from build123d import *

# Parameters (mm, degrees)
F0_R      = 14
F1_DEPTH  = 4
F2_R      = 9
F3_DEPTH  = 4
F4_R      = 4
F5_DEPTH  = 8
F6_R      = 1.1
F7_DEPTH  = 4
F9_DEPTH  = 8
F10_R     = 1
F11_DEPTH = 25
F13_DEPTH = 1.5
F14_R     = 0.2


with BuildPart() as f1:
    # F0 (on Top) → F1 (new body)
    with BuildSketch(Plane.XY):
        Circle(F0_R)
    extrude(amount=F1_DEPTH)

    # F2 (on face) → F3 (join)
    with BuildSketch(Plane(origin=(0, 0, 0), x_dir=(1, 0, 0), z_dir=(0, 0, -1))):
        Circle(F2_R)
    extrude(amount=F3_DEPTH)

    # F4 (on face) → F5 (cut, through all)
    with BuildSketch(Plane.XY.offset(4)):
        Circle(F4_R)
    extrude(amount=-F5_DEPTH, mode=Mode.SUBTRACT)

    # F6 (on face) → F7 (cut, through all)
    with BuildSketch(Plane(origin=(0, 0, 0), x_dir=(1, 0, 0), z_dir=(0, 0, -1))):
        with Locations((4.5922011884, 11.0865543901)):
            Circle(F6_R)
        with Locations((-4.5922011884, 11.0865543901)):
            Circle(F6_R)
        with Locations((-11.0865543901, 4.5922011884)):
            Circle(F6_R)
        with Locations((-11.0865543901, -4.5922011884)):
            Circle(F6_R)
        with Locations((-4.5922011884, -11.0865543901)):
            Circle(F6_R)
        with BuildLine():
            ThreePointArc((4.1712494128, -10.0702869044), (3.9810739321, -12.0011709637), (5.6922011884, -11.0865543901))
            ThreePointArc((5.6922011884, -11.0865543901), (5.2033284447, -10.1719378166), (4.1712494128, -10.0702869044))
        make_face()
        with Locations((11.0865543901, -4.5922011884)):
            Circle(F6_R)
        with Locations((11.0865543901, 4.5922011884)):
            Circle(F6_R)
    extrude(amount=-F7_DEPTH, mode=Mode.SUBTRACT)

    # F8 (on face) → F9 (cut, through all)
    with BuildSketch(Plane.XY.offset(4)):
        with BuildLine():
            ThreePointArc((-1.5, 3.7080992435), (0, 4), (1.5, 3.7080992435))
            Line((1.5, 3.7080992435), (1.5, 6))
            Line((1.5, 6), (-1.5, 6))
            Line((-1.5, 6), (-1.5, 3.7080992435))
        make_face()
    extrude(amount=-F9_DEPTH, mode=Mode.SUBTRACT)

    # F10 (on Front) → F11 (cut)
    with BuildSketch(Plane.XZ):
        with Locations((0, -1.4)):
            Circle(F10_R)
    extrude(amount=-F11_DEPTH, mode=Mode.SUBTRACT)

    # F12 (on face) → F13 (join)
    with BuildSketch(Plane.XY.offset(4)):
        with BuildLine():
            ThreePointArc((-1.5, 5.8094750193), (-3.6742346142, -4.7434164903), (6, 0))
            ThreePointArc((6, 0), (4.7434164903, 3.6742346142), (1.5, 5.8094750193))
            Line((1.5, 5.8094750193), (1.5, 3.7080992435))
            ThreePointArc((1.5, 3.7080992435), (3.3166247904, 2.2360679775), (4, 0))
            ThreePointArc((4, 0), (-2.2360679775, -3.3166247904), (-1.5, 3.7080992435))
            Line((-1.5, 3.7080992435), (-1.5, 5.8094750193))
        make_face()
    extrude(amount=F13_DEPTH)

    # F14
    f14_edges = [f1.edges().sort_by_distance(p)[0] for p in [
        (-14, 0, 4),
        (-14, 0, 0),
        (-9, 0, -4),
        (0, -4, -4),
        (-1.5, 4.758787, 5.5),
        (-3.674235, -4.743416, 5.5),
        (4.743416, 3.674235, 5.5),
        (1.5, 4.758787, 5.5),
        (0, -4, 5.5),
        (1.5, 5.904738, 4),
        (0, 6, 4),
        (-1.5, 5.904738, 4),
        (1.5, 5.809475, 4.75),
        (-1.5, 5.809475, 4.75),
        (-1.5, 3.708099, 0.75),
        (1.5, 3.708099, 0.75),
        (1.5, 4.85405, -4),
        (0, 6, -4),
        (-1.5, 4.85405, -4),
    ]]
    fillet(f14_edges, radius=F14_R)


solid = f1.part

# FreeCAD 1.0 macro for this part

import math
import FreeCAD as App
import Part
import Sketcher

V = App.Vector


def edges_at(feature, points):
    """Names of the edges that pass closest to the given points."""
    edges = feature.Shape.Edges
    near = lambda p: min(range(len(edges)), key=lambda i: edges[i].distToShape(Part.Vertex(*p))[0])
    return sorted({f"Edge{near(p) + 1}" for p in points})

doc = App.newDocument("Part")
body = doc.addObject("PartDesign::Body", "Body")

sketch1 = body.newObject("Sketcher::SketchObject", "Sketch")
sketch1.AttachmentSupport = (doc.getObject("XY_Plane"), [""])
sketch1.MapMode = "FlatFace"
sketch1.addGeometry(Part.Circle(V(0, 0, 0), V(0, 0, 1), 14), False)
sketch1.addConstraint([
    Sketcher.Constraint("Coincident", 0, 3, -1, 1),
    Sketcher.Constraint("Diameter", 0, 28.0),
])
pad1 = body.newObject("PartDesign::Pad", "Pad")
pad1.Profile = sketch1
pad1.Length = 4

sketch2 = body.newObject("Sketcher::SketchObject", "Sketch001")
sketch2.AttachmentSupport = (doc.getObject("XY_Plane"), [""])
sketch2.MapMode = "FlatFace"
sketch2.addGeometry(Part.Circle(V(0, 0, 0), V(0, 0, 1), 9), False)
sketch2.addConstraint([
    Sketcher.Constraint("Coincident", 0, 3, -1, 1),
    Sketcher.Constraint("Diameter", 0, 18.0),
])
pad2 = body.newObject("PartDesign::Pad", "Pad001")
pad2.Profile = sketch2
pad2.Length = 4
pad2.Reversed = True

sketch3 = body.newObject("Sketcher::SketchObject", "Sketch002")
sketch3.AttachmentSupport = (doc.getObject("XY_Plane"), [""])
sketch3.MapMode = "FlatFace"
sketch3.AttachmentOffset = App.Placement(V(0, 0, 4), App.Rotation())
sketch3.addGeometry(Part.Circle(V(0, 0, 0), V(0, 0, 1), 4), False)
sketch3.addConstraint([
    Sketcher.Constraint("Coincident", 0, 3, -1, 1),
    Sketcher.Constraint("Diameter", 0, 8.0),
])
pocket1 = body.newObject("PartDesign::Pocket", "Pocket")
pocket1.Profile = sketch3
pocket1.Type = "ThroughAll"

sketch4 = body.newObject("Sketcher::SketchObject", "Sketch003")
sketch4.AttachmentSupport = (doc.getObject("XY_Plane"), [""])
sketch4.MapMode = "FlatFace"
sketch4.addGeometry([
    Part.Circle(V(4.6, -11.1, 0), V(0, 0, 1), 1.1),
    Part.Circle(V(-4.6, -11.1, 0), V(0, 0, 1), 1.1),
    Part.Circle(V(-11.1, -4.6, 0), V(0, 0, 1), 1.1),
    Part.Circle(V(-11.1, 4.6, 0), V(0, 0, 1), 1.1),
    Part.Circle(V(-4.6, 11.1, 0), V(0, 0, 1), 1.1),
    Part.ArcOfCircle(Part.Circle(V(4.6, 11.1, 0), V(0, 0, 1), 1.1), math.radians(0), math.radians(248)),
    Part.ArcOfCircle(Part.Circle(V(4.6, 11.1, 0), V(0, 0, 1), 1.1), math.radians(-112), math.radians(0)),
    Part.Circle(V(11.1, 4.6, 0), V(0, 0, 1), 1.1),
    Part.Circle(V(11.1, -4.6, 0), V(0, 0, 1), 1.1),
], False)
sketch4.addConstraint([
    Sketcher.Constraint("Tangent", 5, 1, 6, 2),
    Sketcher.Constraint("Coincident", 6, 1, 5, 2),
    Sketcher.Constraint("Equal", 0, 1),
    Sketcher.Constraint("Equal", 1, 2),
    Sketcher.Constraint("Equal", 2, 3),
    Sketcher.Constraint("Equal", 3, 4),
    Sketcher.Constraint("Equal", 4, 5),
    Sketcher.Constraint("Equal", 6, 7),
    Sketcher.Constraint("Equal", 7, 8),
    Sketcher.Constraint("Symmetric", 0, 3, 4, 3, -1, 1),
    Sketcher.Constraint("Symmetric", 1, 3, 5, 3, -1, 1),
    Sketcher.Constraint("Symmetric", 2, 3, 7, 3, -1, 1),
    Sketcher.Constraint("Symmetric", 3, 3, 8, 3, -1, 1),
    Sketcher.Constraint("Symmetric", 0, 3, 1, 3, -2),
    Sketcher.Constraint("Symmetric", 3, 3, 7, 3, -2),
    Sketcher.Constraint("Horizontal", 6, 3, 5, 1),
    Sketcher.Constraint("Diameter", 0, 2.2),
    Sketcher.Constraint("DistanceX", -1, 1, 0, 3, 4.592201),
    Sketcher.Constraint("DistanceY", 2, 3, -1, 1, 4.592201),
    Sketcher.Constraint("DistanceX", -1, 1, 6, 1, 4.171249),
    Sketcher.Constraint("DistanceY", 1, 3, 4, 3, 22.173109),
    Sketcher.Constraint("DistanceX", 2, 3, -1, 1, 11.086554),
])
pocket2 = body.newObject("PartDesign::Pocket", "Pocket001")
pocket2.Profile = sketch4
pocket2.Type = "ThroughAll"
pocket2.Reversed = True

sketch5 = body.newObject("Sketcher::SketchObject", "Sketch004")
sketch5.AttachmentSupport = (doc.getObject("XY_Plane"), [""])
sketch5.MapMode = "FlatFace"
sketch5.AttachmentOffset = App.Placement(V(0, 0, 4), App.Rotation())
sketch5.addGeometry([
    Part.ArcOfCircle(Part.Circle(V(0, 0, 0), V(0, 0, 1), 4), math.radians(68), math.radians(112)),
    Part.LineSegment(V(1.5, 3.7, 0), V(1.5, 6, 0)),
    Part.LineSegment(V(1.5, 6, 0), V(-1.5, 6, 0)),
    Part.LineSegment(V(-1.5, 6, 0), V(-1.5, 3.7, 0)),
], False)
sketch5.addConstraint([
    Sketcher.Constraint("Coincident", 0, 1, 1, 1),
    Sketcher.Constraint("Coincident", 1, 2, 2, 1),
    Sketcher.Constraint("Coincident", 2, 2, 3, 1),
    Sketcher.Constraint("Coincident", 3, 2, 0, 2),
    Sketcher.Constraint("Vertical", 1),
    Sketcher.Constraint("Horizontal", 2),
    Sketcher.Constraint("Vertical", 3),
    Sketcher.Constraint("Coincident", 0, 3, -1, 1),
    Sketcher.Constraint("Horizontal", 0, 1, 3, 2),
    Sketcher.Constraint("Radius", 0, 4.0),
    Sketcher.Constraint("DistanceX", 2, 2, 2, 1, 3.0),
    Sketcher.Constraint("DistanceY", -1, 1, 1, 2, 6.0),
])
pocket3 = body.newObject("PartDesign::Pocket", "Pocket002")
pocket3.Profile = sketch5
pocket3.Type = "ThroughAll"

sketch6 = body.newObject("Sketcher::SketchObject", "Sketch005")
sketch6.AttachmentSupport = (doc.getObject("XZ_Plane"), [""])
sketch6.MapMode = "FlatFace"
sketch6.addGeometry(Part.Circle(V(0, -1.4, 0), V(0, 0, 1), 1), False)
sketch6.addConstraint([
    Sketcher.Constraint("PointOnObject", 0, 3, -2),
    Sketcher.Constraint("Diameter", 0, 2.0),
    Sketcher.Constraint("DistanceY", 0, 3, -1, 1, 1.4),
])
pocket4 = body.newObject("PartDesign::Pocket", "Pocket003")
pocket4.Profile = sketch6
pocket4.Length = 25

sketch7 = body.newObject("Sketcher::SketchObject", "Sketch006")
sketch7.AttachmentSupport = (doc.getObject("XY_Plane"), [""])
sketch7.MapMode = "FlatFace"
sketch7.AttachmentOffset = App.Placement(V(0, 0, 4), App.Rotation())
sketch7.addGeometry([
    Part.ArcOfCircle(Part.Circle(V(0, 0, 0), V(0, 0, 1), 6), math.radians(104), math.radians(360)),
    Part.ArcOfCircle(Part.Circle(V(0, 0, 0), V(0, 0, 1), 6), math.radians(0), math.radians(76)),
    Part.LineSegment(V(1.5, 5.8, 0), V(1.5, 3.7, 0)),
    Part.ArcOfCircle(Part.Circle(V(0, 0, 0), V(0, 0, 1), 4), math.radians(0), math.radians(68)),
    Part.ArcOfCircle(Part.Circle(V(0, 0, 0), V(0, 0, 1), 4), math.radians(112), math.radians(360)),
    Part.LineSegment(V(-1.5, 3.7, 0), V(-1.5, 5.8, 0)),
], False)
sketch7.addConstraint([
    Sketcher.Constraint("Tangent", 0, 2, 1, 1),
    Sketcher.Constraint("Coincident", 1, 2, 2, 1),
    Sketcher.Constraint("Coincident", 2, 2, 3, 2),
    Sketcher.Constraint("Tangent", 3, 1, 4, 2),
    Sketcher.Constraint("Coincident", 4, 1, 5, 1),
    Sketcher.Constraint("Coincident", 5, 2, 0, 1),
    Sketcher.Constraint("Vertical", 2),
    Sketcher.Constraint("Vertical", 5),
    Sketcher.Constraint("Coincident", 0, 3, -1, 1),
    Sketcher.Constraint("Coincident", 3, 3, -1, 1),
    Sketcher.Constraint("Equal", 0, 1),
    Sketcher.Constraint("Equal", 3, 4),
    Sketcher.Constraint("PointOnObject", 0, 2, -1),
    Sketcher.Constraint("PointOnObject", 3, 1, -1),
    Sketcher.Constraint("Horizontal", 2, 2, 4, 1),
    Sketcher.Constraint("Radius", 0, 6.0),
    Sketcher.Constraint("Radius", 3, 4.0),
    Sketcher.Constraint("DistanceX", 4, 1, 2, 2, 3.0),
])
pad3 = body.newObject("PartDesign::Pad", "Pad002")
pad3.Profile = sketch7
pad3.Length = 1.5
doc.recompute()

fillet = body.newObject("PartDesign::Fillet", "Fillet")
fillet.Base = (pad3, edges_at(pad3, [
    (-14, 0, 4),
    (-14, 0, 0),
    (-9, 0, -4),
    (0, -4, -4),
    (-1.5, 4.759, 5.5),
    (-3.674, -4.743, 5.5),
    (4.743, 3.674, 5.5),
    (1.5, 4.759, 5.5),
    (-2.236, -3.317, 5.5),
    (1.5, 5.905, 4),
    (0, 6, 4),
    (-1.5, 5.905, 4),
    (1.5, 5.809, 4.75),
    (-1.5, 5.809, 4.75),
    (-1.5, 3.708, 0),
    (1.5, 3.708, 0),
    (1.5, 4.854, -4),
    (0, 6, -4),
    (-1.5, 4.854, -4),
]))
fillet.Radius = 0.2

doc.recompute()
